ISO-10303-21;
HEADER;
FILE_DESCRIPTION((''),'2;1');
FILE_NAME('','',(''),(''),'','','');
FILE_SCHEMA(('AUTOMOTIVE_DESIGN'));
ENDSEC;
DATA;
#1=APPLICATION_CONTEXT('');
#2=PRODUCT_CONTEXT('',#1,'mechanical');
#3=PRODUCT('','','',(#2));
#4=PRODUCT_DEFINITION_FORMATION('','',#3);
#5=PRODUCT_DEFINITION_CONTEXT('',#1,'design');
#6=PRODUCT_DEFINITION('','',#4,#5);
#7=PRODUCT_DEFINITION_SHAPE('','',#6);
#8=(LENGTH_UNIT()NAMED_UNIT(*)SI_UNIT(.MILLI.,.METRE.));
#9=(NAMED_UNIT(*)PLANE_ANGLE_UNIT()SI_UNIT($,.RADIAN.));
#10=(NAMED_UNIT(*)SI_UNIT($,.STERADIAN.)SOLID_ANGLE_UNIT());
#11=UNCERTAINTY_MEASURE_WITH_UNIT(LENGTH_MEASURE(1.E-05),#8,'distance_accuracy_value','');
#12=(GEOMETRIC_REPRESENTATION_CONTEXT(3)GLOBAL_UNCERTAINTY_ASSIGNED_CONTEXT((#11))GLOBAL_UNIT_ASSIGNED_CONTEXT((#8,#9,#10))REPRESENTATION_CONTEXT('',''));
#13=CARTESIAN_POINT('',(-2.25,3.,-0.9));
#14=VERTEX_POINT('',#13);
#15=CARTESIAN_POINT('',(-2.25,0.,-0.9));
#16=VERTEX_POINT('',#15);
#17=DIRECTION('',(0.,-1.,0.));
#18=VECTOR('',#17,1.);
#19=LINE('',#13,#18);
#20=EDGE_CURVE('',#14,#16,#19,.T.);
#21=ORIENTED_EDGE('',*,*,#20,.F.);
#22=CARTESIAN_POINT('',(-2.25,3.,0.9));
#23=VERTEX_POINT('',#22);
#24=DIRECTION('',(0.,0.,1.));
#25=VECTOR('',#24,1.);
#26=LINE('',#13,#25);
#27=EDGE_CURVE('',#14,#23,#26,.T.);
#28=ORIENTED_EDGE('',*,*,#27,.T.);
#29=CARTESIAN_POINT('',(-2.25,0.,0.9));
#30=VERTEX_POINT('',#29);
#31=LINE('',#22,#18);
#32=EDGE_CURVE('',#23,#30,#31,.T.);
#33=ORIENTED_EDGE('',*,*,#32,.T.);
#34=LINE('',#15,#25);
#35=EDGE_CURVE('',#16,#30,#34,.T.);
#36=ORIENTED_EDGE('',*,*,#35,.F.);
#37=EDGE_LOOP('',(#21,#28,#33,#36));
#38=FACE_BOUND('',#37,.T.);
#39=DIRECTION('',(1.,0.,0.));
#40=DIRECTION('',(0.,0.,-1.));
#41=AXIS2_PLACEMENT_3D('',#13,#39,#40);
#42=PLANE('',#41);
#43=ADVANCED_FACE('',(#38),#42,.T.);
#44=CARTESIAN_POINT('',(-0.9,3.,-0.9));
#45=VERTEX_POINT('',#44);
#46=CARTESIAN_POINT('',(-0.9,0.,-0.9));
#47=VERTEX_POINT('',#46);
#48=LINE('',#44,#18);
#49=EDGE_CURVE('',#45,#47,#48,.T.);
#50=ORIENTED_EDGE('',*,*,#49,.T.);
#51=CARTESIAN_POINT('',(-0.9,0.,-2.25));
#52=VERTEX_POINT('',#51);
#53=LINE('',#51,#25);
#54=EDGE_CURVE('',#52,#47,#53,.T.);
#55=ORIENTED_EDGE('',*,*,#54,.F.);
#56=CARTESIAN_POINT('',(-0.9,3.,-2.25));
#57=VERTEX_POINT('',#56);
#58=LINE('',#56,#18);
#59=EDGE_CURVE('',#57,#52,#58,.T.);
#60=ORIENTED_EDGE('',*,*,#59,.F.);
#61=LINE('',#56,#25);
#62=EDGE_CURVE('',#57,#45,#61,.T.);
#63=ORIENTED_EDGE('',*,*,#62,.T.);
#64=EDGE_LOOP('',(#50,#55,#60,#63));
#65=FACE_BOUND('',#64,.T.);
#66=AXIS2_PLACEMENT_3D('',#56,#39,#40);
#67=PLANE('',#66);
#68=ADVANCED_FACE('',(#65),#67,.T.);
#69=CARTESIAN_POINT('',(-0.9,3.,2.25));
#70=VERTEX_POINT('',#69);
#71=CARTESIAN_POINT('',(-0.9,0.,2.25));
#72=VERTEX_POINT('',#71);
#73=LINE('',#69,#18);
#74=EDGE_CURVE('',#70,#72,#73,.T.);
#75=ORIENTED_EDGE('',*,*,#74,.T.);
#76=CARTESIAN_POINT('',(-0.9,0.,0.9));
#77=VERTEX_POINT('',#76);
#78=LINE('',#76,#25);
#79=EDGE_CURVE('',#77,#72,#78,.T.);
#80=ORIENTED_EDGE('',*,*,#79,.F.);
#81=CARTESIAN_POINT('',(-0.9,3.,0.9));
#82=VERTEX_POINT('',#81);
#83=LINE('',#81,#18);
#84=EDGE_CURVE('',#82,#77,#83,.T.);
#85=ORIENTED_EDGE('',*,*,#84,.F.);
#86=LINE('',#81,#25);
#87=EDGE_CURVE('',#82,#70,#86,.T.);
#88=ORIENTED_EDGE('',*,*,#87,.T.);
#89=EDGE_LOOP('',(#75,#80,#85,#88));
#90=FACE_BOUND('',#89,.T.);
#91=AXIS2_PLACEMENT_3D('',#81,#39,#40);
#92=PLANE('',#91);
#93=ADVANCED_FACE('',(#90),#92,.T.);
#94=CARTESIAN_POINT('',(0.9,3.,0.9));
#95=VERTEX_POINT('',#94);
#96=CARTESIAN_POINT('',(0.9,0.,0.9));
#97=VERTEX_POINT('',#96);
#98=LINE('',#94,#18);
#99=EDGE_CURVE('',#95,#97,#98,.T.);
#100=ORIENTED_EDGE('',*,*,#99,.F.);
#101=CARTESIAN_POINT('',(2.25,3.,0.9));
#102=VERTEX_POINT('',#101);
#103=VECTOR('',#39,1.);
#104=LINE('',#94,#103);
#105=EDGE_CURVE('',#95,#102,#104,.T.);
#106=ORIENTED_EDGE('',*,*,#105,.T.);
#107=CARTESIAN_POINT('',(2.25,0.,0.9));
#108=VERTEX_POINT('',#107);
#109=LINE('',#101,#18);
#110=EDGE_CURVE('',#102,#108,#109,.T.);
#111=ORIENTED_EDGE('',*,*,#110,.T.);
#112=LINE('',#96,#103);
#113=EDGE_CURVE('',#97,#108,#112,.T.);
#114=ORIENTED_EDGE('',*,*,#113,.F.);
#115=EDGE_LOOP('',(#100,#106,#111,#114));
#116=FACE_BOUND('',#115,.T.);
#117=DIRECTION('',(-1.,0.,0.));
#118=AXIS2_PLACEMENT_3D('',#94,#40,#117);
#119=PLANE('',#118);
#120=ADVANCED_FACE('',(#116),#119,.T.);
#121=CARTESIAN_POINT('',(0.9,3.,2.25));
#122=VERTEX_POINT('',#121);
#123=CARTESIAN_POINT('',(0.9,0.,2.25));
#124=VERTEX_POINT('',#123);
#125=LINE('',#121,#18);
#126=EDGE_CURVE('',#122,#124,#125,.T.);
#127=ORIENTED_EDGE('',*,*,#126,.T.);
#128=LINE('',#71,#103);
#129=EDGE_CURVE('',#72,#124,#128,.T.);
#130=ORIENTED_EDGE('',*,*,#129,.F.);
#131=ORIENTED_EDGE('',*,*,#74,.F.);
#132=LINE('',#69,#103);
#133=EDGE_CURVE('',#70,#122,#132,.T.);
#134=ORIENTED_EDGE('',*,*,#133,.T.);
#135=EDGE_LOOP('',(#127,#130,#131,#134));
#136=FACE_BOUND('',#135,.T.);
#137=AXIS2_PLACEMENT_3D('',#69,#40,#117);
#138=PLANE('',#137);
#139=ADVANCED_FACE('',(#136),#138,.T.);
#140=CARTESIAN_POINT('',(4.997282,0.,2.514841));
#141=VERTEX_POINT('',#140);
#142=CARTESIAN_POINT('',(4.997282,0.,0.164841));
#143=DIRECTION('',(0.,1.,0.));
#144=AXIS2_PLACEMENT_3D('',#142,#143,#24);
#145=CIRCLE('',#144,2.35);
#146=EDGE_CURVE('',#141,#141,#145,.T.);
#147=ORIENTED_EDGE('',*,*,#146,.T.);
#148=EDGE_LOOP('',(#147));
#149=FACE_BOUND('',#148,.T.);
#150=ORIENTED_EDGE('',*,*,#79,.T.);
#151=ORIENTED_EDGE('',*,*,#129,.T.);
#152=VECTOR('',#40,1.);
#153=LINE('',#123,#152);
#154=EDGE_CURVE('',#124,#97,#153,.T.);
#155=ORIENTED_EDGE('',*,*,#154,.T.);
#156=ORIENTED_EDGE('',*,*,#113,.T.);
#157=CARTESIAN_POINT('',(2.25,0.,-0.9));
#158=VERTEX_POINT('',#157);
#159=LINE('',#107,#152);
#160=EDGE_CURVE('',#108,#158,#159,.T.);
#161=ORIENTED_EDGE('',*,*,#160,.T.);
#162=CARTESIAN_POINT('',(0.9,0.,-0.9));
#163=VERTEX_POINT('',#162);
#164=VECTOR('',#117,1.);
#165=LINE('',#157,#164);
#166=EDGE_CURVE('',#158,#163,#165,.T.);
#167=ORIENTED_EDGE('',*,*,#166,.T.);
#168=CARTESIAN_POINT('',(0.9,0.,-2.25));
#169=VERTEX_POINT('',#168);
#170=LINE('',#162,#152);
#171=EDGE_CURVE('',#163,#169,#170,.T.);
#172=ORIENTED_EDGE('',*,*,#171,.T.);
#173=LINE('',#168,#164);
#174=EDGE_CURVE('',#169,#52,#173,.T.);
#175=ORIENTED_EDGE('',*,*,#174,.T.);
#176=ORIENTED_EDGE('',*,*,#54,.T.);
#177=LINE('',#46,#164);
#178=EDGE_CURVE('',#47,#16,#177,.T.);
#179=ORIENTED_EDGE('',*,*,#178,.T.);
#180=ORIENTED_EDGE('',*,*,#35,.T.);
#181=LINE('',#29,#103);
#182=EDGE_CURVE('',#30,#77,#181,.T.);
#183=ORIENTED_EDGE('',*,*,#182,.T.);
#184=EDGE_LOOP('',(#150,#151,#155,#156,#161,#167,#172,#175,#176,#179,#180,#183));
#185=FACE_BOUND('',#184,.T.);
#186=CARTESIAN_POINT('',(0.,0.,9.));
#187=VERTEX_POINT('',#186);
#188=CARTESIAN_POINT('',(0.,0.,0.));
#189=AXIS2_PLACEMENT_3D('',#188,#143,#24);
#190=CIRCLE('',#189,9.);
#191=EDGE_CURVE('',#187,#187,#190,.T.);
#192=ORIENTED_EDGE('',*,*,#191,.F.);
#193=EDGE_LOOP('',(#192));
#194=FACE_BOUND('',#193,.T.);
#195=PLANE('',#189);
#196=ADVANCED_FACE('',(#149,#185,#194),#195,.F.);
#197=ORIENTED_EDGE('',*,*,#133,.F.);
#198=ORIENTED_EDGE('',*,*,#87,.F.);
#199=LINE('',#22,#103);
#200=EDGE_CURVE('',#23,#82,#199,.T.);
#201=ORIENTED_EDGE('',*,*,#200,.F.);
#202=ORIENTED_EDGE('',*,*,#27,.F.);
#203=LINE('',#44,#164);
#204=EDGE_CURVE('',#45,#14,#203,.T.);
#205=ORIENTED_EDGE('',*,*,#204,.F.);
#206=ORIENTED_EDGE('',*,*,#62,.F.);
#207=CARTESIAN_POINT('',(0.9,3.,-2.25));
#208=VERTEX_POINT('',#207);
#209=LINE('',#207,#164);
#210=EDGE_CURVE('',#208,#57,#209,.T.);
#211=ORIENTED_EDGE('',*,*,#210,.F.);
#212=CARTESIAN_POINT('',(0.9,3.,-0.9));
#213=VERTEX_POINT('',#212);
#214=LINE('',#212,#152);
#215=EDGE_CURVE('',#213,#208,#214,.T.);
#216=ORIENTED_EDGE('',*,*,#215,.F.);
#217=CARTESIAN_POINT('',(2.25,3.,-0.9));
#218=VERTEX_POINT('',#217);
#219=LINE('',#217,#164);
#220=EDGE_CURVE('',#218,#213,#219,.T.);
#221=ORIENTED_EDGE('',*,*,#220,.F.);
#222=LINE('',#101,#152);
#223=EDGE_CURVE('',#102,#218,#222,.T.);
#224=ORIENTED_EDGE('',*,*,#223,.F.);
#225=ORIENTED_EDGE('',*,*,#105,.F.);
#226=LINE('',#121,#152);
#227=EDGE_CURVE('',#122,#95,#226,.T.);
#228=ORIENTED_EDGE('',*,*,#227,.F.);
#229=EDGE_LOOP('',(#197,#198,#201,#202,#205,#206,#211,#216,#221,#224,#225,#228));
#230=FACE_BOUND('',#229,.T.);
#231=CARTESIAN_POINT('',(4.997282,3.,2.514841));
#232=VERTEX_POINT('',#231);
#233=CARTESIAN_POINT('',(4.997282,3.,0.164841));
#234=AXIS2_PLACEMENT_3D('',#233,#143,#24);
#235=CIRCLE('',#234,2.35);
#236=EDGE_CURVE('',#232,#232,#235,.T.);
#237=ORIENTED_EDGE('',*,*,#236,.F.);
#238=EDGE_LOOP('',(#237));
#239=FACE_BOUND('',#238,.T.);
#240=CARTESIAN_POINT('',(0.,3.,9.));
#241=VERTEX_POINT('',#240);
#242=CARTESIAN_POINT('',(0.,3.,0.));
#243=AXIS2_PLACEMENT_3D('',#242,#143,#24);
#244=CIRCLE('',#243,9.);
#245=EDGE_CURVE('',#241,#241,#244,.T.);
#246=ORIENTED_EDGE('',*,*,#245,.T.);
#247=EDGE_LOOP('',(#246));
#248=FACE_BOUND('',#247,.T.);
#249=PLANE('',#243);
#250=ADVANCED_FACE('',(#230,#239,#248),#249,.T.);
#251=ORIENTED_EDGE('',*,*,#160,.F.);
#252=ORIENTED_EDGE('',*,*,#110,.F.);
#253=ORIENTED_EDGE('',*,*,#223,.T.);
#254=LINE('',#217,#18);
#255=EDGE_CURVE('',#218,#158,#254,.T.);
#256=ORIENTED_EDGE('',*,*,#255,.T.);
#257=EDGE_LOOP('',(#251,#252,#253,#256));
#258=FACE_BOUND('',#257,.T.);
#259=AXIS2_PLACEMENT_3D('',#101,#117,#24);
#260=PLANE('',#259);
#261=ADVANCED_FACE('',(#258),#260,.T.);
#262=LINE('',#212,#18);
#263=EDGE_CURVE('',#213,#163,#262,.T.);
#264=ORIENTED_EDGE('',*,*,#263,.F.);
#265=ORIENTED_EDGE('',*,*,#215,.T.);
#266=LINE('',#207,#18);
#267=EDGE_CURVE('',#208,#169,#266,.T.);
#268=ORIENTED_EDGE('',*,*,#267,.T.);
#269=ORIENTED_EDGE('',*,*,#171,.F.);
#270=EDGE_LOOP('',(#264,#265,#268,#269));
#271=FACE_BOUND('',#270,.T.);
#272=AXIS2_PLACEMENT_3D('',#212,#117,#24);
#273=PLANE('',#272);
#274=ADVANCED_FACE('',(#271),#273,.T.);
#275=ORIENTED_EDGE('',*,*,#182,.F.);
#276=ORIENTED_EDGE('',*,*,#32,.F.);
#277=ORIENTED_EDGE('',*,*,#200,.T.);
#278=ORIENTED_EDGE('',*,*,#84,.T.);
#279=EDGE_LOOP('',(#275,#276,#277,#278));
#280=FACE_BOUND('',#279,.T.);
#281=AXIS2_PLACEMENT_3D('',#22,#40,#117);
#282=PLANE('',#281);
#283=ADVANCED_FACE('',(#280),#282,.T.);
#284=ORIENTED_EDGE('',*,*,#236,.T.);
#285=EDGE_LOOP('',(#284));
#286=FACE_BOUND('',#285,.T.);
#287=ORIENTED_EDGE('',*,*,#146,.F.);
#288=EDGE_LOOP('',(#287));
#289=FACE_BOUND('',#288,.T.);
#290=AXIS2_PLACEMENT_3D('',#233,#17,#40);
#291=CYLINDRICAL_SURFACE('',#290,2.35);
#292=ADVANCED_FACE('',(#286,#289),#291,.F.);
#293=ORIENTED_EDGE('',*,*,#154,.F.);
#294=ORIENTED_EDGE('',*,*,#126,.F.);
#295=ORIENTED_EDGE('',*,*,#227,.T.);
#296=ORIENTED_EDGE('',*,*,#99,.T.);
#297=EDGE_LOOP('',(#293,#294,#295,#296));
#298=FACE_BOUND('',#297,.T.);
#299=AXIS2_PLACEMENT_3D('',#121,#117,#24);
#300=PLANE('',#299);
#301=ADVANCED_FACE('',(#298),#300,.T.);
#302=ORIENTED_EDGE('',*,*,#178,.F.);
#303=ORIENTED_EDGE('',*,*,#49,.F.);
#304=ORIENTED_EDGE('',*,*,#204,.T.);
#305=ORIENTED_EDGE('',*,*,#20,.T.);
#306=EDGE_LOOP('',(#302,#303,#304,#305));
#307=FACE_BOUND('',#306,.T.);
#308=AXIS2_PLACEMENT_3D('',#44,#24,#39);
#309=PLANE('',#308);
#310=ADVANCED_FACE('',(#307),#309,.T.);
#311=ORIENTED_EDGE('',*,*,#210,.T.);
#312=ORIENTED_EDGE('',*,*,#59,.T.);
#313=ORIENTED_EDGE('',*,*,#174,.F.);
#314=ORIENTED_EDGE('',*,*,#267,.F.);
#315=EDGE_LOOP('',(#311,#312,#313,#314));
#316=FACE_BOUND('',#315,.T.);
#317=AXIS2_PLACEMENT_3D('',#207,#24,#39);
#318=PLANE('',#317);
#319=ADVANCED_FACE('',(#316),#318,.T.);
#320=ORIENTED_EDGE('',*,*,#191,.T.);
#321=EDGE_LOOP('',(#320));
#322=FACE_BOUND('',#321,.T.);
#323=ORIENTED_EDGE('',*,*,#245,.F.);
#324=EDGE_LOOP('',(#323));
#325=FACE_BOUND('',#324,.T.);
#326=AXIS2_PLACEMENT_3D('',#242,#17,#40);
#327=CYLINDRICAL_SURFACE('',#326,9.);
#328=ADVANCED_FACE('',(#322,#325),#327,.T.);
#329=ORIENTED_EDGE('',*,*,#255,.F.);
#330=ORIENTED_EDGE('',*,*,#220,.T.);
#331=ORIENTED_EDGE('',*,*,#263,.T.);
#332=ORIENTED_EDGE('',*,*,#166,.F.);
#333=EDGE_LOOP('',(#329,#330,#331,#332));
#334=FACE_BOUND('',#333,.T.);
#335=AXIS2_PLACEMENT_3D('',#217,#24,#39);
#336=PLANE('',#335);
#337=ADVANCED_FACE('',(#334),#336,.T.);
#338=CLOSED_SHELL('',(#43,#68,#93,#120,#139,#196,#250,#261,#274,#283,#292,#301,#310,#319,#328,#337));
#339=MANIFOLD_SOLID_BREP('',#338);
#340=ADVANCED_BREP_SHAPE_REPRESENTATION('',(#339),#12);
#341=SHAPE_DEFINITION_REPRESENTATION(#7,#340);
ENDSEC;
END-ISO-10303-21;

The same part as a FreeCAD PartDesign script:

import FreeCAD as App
import Part
import Sketcher

V = App.Vector
Q = App.Units.Quantity

doc = App.newDocument("Part")
body = doc.addObject("PartDesign::Body", "Body")

sketch1 = doc.addObject("Sketcher::SketchObject", "Sketch")
body.addObject(sketch1)
sketch1.AttachmentSupport = (doc.XZ_Plane, [""])
sketch1.MapMode = "FlatFace"
sketch1.addGeometry(Part.Circle(V(0, 0, 0), V(0, 0, 1), 9), False)
sketch1.addGeometry(Part.Circle(V(5, 0.2, 0), V(0, 0, 1), 2.4), False)
sketch1.addGeometry(Part.LineSegment(V(-2.2, 0.9, 0), V(-2.2, -0.9, 0)), False)
sketch1.addGeometry(Part.LineSegment(V(-2.2, -0.9, 0), V(-0.9, -0.9, 0)), False)
sketch1.addGeometry(Part.LineSegment(V(-0.9, -0.9, 0), V(-0.9, -2.2, 0)), False)
sketch1.addGeometry(Part.LineSegment(V(-0.9, -2.2, 0), V(0.9, -2.2, 0)), False)
sketch1.addGeometry(Part.LineSegment(V(0.9, -2.2, 0), V(0.9, -0.9, 0)), False)
sketch1.addGeometry(Part.LineSegment(V(0.9, -0.9, 0), V(2.2, -0.9, 0)), False)
sketch1.addGeometry(Part.LineSegment(V(2.2, -0.9, 0), V(2.2, 0.9, 0)), False)
sketch1.addGeometry(Part.LineSegment(V(2.2, 0.9, 0), V(0.9, 0.9, 0)), False)
sketch1.addGeometry(Part.LineSegment(V(0.9, 0.9, 0), V(0.9, 2.2, 0)), False)
sketch1.addGeometry(Part.LineSegment(V(0.9, 2.2, 0), V(-0.9, 2.2, 0)), False)
sketch1.addGeometry(Part.LineSegment(V(-0.9, 2.2, 0), V(-0.9, 0.9, 0)), False)
sketch1.addGeometry(Part.LineSegment(V(-0.9, 0.9, 0), V(-2.2, 0.9, 0)), False)
sketch1.addConstraint(Sketcher.Constraint("Coincident", 2, 2, 3, 1))
sketch1.addConstraint(Sketcher.Constraint("Coincident", 3, 2, 4, 1))
sketch1.addConstraint(Sketcher.Constraint("Coincident", 4, 2, 5, 1))
sketch1.addConstraint(Sketcher.Constraint("Coincident", 5, 2, 6, 1))
sketch1.addConstraint(Sketcher.Constraint("Coincident", 6, 2, 7, 1))
sketch1.addConstraint(Sketcher.Constraint("Coincident", 7, 2, 8, 1))
sketch1.addConstraint(Sketcher.Constraint("Coincident", 8, 2, 9, 1))
sketch1.addConstraint(Sketcher.Constraint("Coincident", 9, 2, 10, 1))
sketch1.addConstraint(Sketcher.Constraint("Coincident", 10, 2, 11, 1))
sketch1.addConstraint(Sketcher.Constraint("Coincident", 11, 2, 12, 1))
sketch1.addConstraint(Sketcher.Constraint("Coincident", 12, 2, 13, 1))
sketch1.addConstraint(Sketcher.Constraint("Coincident", 13, 2, 2, 1))
sketch1.addConstraint(Sketcher.Constraint("Vertical", 2))
sketch1.addConstraint(Sketcher.Constraint("Horizontal", 3))
sketch1.addConstraint(Sketcher.Constraint("Vertical", 4))
sketch1.addConstraint(Sketcher.Constraint("Horizontal", 5))
sketch1.addConstraint(Sketcher.Constraint("Vertical", 6))
sketch1.addConstraint(Sketcher.Constraint("Horizontal", 7))
sketch1.addConstraint(Sketcher.Constraint("Vertical", 8))
sketch1.addConstraint(Sketcher.Constraint("Horizontal", 9))
sketch1.addConstraint(Sketcher.Constraint("Vertical", 10))
sketch1.addConstraint(Sketcher.Constraint("Horizontal", 11))
sketch1.addConstraint(Sketcher.Constraint("Vertical", 12))
sketch1.addConstraint(Sketcher.Constraint("Horizontal", 13))
sketch1.addConstraint(Sketcher.Constraint("Coincident", 0, 3, -1, 1))
sketch1.addConstraint(Sketcher.Constraint("Symmetric", 2, 2, 8, 2, -1, 1))
sketch1.addConstraint(Sketcher.Constraint("Symmetric", 4, 2, 10, 2, -1, 1))
sketch1.addConstraint(Sketcher.Constraint("Symmetric", 6, 2, 12, 2, -1, 1))
sketch1.addConstraint(Sketcher.Constraint("Symmetric", 3, 2, 6, 2, -2))
sketch1.addConstraint(Sketcher.Constraint("Equal", 11, 2))
sketch1.addConstraint(Sketcher.Constraint("Equal", 13, 4))
sketch1.addConstraint(Sketcher.Constraint("Diameter", 0, Q("18 mm")))
sketch1.addConstraint(Sketcher.Constraint("Diameter", 1, Q("4.7 mm")))
sketch1.addConstraint(Sketcher.Constraint("DistanceX", 5, 1, 5, 2, Q("1.8 mm")))
sketch1.addConstraint(Sketcher.Constraint("DistanceX", 3, 1, 3, 2, Q("1.35 mm")))
sketch1.addConstraint(Sketcher.Constraint("DistanceX", -1, 1, 1, 3, Q("4.997282 mm")))
sketch1.addConstraint(Sketcher.Constraint("DistanceY", -1, 1, 1, 3, Q("0.164841 mm")))
pad1 = doc.addObject("PartDesign::Pad", "Pad")
body.addObject(pad1)
pad1.Profile = sketch1
pad1.Length = 3
pad1.Reversed = True

doc.recompute()
